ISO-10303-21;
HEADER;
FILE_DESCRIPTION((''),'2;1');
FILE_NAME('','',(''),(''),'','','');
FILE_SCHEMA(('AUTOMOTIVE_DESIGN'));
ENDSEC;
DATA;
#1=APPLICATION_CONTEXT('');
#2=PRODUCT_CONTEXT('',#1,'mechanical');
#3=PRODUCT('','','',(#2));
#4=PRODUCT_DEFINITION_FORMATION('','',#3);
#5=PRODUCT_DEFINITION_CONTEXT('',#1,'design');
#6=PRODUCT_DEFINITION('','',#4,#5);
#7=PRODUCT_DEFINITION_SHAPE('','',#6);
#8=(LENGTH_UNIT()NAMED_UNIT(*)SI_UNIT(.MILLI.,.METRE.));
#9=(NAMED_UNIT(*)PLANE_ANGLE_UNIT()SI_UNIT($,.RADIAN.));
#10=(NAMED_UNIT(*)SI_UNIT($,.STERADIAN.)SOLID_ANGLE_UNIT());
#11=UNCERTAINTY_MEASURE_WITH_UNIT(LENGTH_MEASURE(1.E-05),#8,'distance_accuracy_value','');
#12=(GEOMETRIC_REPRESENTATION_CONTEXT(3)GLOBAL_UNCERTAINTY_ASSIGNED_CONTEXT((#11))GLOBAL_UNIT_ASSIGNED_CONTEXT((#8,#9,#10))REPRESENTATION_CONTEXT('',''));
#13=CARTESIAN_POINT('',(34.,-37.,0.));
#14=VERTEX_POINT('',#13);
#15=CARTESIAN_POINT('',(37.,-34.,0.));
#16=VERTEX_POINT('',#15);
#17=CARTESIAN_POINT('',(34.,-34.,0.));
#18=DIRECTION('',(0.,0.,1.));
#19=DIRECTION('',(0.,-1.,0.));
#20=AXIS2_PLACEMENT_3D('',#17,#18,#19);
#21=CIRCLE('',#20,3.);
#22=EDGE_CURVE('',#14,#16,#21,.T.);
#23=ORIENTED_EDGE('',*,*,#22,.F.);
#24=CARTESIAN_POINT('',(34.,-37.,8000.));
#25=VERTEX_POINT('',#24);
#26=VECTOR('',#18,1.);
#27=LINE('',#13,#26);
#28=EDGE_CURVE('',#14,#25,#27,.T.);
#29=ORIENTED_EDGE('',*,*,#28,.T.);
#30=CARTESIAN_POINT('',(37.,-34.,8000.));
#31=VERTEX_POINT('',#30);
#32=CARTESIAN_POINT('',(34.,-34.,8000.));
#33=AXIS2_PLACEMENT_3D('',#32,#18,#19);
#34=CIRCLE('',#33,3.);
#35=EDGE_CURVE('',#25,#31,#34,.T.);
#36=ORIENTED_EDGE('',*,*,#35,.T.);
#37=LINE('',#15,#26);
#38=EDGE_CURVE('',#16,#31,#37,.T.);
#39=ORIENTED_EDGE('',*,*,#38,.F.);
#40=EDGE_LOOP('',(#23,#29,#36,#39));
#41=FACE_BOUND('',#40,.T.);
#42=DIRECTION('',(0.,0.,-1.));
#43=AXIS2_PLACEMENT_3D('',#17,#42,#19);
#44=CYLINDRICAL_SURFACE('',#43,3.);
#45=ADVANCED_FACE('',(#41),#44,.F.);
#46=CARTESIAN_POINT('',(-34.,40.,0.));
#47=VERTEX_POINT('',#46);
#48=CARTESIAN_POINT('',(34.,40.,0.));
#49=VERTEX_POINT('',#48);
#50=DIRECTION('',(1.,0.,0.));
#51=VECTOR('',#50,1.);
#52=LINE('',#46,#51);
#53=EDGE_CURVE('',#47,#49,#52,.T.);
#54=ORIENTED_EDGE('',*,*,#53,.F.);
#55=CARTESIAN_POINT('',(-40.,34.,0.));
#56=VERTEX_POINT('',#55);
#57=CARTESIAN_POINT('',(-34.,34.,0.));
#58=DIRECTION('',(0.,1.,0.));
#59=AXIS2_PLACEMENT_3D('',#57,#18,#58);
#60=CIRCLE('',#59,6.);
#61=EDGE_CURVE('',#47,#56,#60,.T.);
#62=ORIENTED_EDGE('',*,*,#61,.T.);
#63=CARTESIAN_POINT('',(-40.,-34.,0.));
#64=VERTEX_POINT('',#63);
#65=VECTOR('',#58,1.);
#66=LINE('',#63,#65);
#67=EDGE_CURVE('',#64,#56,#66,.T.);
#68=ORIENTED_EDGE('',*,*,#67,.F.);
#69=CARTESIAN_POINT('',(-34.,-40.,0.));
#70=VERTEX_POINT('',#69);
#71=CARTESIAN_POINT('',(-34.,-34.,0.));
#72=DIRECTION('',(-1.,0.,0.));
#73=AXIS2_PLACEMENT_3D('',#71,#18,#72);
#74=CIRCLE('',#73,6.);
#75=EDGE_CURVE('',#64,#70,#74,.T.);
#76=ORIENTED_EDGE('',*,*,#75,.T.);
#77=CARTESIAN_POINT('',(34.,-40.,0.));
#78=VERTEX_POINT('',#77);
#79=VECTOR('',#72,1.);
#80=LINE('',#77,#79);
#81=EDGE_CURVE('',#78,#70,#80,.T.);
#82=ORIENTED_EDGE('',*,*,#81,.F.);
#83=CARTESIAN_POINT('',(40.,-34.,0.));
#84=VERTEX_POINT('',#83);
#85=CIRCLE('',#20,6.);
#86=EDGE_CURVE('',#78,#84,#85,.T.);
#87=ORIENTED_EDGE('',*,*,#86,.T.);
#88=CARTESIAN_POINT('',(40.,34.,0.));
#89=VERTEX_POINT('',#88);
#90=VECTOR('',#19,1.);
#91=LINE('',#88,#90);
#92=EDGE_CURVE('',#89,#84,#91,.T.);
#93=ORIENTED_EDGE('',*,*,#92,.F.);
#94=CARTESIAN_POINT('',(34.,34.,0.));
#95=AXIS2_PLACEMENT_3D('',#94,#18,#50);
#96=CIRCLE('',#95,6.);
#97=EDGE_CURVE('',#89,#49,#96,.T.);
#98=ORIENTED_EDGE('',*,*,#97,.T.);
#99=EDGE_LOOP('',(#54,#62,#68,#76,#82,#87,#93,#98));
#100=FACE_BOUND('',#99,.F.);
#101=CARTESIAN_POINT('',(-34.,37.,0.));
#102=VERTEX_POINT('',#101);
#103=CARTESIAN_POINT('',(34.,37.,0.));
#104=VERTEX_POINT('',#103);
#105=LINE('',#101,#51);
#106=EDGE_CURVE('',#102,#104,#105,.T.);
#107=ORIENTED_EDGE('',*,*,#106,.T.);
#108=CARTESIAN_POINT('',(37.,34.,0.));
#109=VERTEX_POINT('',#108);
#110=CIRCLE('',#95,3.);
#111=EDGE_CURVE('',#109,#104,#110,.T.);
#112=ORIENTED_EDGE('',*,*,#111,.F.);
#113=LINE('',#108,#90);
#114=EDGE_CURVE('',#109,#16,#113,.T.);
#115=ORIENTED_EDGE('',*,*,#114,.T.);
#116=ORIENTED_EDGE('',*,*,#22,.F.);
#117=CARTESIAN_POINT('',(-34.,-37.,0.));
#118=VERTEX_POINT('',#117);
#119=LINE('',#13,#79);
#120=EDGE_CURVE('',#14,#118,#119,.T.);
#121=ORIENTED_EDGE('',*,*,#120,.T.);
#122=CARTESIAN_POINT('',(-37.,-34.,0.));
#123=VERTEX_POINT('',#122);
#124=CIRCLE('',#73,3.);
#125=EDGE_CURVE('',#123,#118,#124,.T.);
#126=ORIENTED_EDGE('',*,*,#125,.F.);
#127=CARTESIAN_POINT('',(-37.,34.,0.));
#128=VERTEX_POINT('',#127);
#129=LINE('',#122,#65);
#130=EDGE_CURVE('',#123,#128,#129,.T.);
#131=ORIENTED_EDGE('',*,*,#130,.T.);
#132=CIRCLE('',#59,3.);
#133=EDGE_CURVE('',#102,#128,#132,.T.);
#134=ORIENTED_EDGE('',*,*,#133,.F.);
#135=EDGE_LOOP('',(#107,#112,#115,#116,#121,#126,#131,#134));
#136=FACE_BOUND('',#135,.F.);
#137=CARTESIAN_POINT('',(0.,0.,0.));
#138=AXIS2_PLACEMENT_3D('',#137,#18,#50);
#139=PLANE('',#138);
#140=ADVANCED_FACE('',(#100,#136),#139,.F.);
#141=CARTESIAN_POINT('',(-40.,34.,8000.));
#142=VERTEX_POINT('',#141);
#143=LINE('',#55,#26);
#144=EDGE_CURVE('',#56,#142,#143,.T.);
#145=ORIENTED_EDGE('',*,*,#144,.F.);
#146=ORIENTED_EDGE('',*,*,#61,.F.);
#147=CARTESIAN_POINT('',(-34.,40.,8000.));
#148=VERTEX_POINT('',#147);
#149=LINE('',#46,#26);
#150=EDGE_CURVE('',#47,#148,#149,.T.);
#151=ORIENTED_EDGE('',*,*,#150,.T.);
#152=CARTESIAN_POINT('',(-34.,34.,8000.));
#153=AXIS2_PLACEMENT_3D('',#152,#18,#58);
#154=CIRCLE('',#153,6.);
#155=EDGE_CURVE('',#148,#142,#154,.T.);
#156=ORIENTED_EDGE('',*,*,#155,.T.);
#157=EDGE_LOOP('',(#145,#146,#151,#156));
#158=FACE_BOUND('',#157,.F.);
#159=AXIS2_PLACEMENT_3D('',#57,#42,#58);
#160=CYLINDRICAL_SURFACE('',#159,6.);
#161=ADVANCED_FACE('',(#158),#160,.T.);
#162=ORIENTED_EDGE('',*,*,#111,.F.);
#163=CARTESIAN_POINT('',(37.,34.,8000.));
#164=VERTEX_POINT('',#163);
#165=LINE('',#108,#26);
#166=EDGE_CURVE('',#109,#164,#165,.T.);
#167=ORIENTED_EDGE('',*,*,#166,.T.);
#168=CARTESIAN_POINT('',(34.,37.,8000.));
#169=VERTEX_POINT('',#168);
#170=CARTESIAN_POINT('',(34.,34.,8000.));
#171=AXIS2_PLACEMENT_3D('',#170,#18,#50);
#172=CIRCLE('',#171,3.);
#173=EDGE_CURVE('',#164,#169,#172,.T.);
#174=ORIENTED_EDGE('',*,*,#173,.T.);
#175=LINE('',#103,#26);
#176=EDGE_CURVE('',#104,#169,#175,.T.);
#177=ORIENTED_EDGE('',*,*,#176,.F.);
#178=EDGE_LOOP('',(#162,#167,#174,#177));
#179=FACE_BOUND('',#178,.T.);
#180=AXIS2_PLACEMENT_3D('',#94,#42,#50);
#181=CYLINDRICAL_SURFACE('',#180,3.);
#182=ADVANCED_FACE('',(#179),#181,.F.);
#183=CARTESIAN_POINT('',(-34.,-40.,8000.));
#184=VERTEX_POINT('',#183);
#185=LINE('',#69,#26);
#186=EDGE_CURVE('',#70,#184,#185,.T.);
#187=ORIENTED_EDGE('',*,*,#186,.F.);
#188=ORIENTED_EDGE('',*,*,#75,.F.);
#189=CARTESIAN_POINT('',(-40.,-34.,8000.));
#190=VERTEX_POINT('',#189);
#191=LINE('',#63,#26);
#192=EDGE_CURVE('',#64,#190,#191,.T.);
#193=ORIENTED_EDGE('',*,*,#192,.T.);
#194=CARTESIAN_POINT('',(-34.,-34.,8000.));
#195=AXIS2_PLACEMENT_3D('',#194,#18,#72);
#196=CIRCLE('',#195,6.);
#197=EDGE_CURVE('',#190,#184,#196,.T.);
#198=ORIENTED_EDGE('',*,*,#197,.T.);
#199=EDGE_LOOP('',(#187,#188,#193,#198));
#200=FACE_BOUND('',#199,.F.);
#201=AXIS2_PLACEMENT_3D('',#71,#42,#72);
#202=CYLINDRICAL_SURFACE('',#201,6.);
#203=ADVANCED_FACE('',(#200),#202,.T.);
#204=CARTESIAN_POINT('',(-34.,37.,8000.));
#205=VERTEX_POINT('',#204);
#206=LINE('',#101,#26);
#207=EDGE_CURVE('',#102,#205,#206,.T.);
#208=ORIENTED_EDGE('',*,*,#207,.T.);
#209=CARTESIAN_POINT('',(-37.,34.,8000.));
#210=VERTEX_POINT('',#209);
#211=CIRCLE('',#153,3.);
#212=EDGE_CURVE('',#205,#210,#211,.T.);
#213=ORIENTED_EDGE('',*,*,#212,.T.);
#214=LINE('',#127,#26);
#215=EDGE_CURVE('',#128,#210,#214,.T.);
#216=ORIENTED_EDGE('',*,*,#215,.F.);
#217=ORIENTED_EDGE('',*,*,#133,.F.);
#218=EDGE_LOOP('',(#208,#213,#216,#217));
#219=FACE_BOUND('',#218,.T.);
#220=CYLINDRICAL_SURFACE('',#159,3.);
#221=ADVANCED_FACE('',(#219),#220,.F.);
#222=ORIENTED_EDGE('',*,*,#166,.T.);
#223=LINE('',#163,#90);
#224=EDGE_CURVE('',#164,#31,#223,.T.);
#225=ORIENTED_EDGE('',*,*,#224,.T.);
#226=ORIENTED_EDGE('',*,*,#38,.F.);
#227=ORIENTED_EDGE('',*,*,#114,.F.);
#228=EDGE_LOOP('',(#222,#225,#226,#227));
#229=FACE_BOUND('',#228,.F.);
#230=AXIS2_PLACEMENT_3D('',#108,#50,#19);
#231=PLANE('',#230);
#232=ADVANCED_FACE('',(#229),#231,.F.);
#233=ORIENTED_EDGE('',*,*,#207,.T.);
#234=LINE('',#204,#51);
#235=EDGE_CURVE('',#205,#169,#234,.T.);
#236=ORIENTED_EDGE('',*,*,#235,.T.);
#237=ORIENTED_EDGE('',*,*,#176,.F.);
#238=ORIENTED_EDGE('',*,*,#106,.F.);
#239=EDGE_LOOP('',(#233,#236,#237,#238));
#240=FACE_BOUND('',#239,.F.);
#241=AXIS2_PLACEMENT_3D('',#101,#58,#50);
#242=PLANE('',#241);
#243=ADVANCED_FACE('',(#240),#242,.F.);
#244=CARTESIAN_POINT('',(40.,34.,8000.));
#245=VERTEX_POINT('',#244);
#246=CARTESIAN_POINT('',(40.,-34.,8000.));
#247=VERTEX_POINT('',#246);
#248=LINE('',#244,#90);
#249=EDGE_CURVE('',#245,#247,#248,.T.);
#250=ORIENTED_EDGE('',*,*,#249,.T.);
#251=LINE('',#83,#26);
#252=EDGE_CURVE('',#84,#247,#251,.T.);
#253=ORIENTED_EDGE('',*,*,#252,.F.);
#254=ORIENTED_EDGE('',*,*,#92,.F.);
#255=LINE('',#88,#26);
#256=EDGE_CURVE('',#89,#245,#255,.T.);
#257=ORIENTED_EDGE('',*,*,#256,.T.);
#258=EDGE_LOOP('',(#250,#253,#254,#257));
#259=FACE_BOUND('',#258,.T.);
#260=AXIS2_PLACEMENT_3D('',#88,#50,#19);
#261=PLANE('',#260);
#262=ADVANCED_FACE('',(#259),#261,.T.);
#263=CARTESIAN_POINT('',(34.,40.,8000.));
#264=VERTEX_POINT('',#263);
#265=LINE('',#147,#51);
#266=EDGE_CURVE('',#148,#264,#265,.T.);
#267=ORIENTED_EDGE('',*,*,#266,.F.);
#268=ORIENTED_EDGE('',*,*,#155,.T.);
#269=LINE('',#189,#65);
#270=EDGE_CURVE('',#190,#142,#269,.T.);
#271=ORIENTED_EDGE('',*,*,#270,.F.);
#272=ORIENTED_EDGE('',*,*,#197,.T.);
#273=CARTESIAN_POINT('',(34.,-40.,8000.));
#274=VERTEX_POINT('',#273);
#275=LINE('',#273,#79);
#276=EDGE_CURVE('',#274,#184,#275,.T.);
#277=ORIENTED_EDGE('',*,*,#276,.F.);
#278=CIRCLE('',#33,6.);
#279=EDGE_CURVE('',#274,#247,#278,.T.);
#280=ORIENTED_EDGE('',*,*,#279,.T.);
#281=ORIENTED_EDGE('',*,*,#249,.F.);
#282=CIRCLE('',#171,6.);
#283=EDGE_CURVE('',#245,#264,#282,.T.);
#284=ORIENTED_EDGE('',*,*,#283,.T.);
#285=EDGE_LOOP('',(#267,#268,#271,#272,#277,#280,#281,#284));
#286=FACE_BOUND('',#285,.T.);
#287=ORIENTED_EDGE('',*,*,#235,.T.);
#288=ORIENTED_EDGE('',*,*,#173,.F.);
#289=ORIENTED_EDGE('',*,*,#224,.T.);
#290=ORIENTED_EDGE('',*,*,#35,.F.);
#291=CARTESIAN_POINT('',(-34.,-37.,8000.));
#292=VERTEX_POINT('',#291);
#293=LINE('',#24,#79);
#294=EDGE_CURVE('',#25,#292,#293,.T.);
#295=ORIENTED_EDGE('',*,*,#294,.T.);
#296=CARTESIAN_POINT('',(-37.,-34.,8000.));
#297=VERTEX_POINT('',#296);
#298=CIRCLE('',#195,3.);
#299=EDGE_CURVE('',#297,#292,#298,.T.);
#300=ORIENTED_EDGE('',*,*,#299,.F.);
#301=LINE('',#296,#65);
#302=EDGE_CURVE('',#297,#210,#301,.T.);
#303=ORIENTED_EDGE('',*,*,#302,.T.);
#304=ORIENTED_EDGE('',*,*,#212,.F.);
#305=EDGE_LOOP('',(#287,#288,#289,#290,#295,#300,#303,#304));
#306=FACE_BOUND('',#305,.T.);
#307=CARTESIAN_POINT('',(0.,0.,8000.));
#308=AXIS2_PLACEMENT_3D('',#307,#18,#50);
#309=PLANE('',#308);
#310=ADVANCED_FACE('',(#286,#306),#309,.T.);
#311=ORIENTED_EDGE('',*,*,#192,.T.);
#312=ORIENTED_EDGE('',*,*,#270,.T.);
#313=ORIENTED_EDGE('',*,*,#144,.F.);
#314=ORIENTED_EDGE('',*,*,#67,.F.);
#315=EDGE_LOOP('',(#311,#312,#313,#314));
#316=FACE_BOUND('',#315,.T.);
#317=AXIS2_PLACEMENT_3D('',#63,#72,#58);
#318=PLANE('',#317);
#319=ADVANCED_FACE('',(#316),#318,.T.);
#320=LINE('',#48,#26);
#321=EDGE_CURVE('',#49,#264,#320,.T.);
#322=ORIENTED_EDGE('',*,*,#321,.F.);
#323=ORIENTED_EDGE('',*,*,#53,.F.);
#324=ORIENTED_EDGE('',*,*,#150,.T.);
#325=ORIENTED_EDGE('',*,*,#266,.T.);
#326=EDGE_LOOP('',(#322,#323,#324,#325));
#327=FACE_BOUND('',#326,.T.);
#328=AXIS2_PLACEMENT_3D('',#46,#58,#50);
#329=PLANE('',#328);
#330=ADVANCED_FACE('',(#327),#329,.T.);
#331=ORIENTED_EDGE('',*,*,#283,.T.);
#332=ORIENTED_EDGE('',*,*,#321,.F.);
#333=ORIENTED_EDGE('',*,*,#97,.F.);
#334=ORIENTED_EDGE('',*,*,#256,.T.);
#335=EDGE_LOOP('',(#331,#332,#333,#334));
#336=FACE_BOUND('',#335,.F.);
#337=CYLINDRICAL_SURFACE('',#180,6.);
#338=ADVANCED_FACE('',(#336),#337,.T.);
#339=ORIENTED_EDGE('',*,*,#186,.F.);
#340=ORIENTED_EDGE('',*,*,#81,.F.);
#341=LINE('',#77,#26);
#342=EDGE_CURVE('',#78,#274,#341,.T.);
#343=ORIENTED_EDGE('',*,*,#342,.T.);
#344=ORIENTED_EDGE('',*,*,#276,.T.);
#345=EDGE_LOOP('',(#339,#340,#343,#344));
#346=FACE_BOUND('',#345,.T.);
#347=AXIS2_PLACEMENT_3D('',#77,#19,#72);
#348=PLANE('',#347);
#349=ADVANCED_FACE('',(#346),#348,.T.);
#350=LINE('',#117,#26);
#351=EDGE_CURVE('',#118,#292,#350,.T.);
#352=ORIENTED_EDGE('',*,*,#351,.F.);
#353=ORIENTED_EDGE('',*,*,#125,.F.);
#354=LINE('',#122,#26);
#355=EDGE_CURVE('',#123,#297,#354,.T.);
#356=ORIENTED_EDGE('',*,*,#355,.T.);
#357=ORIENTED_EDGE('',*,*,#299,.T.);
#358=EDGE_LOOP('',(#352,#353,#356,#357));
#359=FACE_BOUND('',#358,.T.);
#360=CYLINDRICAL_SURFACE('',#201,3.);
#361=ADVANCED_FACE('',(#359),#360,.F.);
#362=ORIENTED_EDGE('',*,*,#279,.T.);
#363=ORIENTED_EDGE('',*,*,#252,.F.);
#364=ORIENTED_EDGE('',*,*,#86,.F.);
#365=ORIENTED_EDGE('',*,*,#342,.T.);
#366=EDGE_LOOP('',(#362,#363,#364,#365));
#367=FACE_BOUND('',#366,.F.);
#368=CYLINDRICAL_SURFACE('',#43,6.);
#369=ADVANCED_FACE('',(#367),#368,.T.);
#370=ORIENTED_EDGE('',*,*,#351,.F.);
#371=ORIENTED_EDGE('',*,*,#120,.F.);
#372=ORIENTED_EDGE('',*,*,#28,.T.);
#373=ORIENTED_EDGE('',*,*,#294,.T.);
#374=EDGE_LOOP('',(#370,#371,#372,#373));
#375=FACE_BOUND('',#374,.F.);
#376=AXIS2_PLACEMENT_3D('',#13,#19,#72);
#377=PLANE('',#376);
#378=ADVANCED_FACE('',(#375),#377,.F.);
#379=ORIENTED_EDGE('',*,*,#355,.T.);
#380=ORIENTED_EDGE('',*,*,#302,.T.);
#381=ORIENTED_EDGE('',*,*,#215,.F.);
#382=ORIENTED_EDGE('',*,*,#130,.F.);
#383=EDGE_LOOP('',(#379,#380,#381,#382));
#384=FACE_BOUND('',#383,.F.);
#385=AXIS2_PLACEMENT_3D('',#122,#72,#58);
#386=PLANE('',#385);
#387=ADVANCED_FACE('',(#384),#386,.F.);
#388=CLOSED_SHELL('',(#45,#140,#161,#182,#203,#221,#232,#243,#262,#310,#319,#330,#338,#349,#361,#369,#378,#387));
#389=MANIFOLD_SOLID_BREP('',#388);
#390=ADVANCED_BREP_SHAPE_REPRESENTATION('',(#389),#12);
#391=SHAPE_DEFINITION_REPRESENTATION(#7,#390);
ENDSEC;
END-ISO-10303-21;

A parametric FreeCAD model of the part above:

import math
import FreeCAD as App
import Part
import Sketcher
from FreeCAD import Vector
Q = App.Units.Quantity

doc = App.newDocument("Part")
body = doc.addObject("PartDesign::Body", "Body")

# Sketch on XY plane
sketch1 = body.newObject("Sketcher::SketchObject", "Sketch")
sketch1.AttachmentSupport = (doc.getObject("XY_Plane"), [""])
sketch1.MapMode = "FlatFace"
sketch1.addGeometry(Part.LineSegment(Vector(-40, 34, 0), Vector(-40, -34, 0)), False)
sketch1.addGeometry(Part.ArcOfCircle(Part.Circle(Vector(-34, -34, 0), Vector(0, 0, 1), 6), math.radians(180), math.radians(270)), False)
sketch1.addGeometry(Part.LineSegment(Vector(-34, -40, 0), Vector(34, -40, 0)), False)
sketch1.addGeometry(Part.ArcOfCircle(Part.Circle(Vector(34, -34, 0), Vector(0, 0, 1), 6), math.radians(-90), math.radians(0)), False)
sketch1.addGeometry(Part.LineSegment(Vector(40, -34, 0), Vector(40, 34, 0)), False)
sketch1.addGeometry(Part.ArcOfCircle(Part.Circle(Vector(34, 34, 0), Vector(0, 0, 1), 6), math.radians(0), math.radians(90)), False)
sketch1.addGeometry(Part.LineSegment(Vector(34, 40, 0), Vector(-34, 40, 0)), False)
sketch1.addGeometry(Part.ArcOfCircle(Part.Circle(Vector(-34, 34, 0), Vector(0, 0, 1), 6), math.radians(90), math.radians(180)), False)
sketch1.addGeometry(Part.ArcOfCircle(Part.Circle(Vector(-34, 34, 0), Vector(0, 0, 1), 3), math.radians(90), math.radians(180)), False)
sketch1.addGeometry(Part.LineSegment(Vector(-34, 37, 0), Vector(34, 37, 0)), False)
sketch1.addGeometry(Part.ArcOfCircle(Part.Circle(Vector(34, 34, 0), Vector(0, 0, 1), 3), math.radians(0), math.radians(90)), False)
sketch1.addGeometry(Part.LineSegment(Vector(37, 34, 0), Vector(37, -34, 0)), False)
sketch1.addGeometry(Part.ArcOfCircle(Part.Circle(Vector(34, -34, 0), Vector(0, 0, 1), 3), math.radians(-90), math.radians(0)), False)
sketch1.addGeometry(Part.LineSegment(Vector(34, -37, 0), Vector(-34, -37, 0)), False)
sketch1.addGeometry(Part.ArcOfCircle(Part.Circle(Vector(-34, -34, 0), Vector(0, 0, 1), 3), math.radians(180), math.radians(270)), False)
sketch1.addGeometry(Part.LineSegment(Vector(-37, -34, 0), Vector(-37, 34, 0)), False)
sketch1.addConstraint(Sketcher.Constraint("Tangent", 0, 2, 1, 1))
sketch1.addConstraint(Sketcher.Constraint("Tangent", 1, 2, 2, 1))
sketch1.addConstraint(Sketcher.Constraint("Tangent", 2, 2, 3, 1))
sketch1.addConstraint(Sketcher.Constraint("Tangent", 3, 2, 4, 1))
sketch1.addConstraint(Sketcher.Constraint("Tangent", 4, 2, 5, 1))
sketch1.addConstraint(Sketcher.Constraint("Tangent", 5, 2, 6, 1))
sketch1.addConstraint(Sketcher.Constraint("Tangent", 6, 2, 7, 1))
sketch1.addConstraint(Sketcher.Constraint("Tangent", 7, 2, 0, 1))
sketch1.addConstraint(Sketcher.Constraint("Tangent", 8, 1, 9, 1))
sketch1.addConstraint(Sketcher.Constraint("Tangent", 9, 2, 10, 2))
sketch1.addConstraint(Sketcher.Constraint("Tangent", 10, 1, 11, 1))
sketch1.addConstraint(Sketcher.Constraint("Tangent", 11, 2, 12, 2))
sketch1.addConstraint(Sketcher.Constraint("Tangent", 12, 1, 13, 1))
sketch1.addConstraint(Sketcher.Constraint("Tangent", 13, 2, 14, 2))
sketch1.addConstraint(Sketcher.Constraint("Tangent", 14, 1, 15, 1))
sketch1.addConstraint(Sketcher.Constraint("Tangent", 15, 2, 8, 2))
sketch1.addConstraint(Sketcher.Constraint("Vertical", 0))
sketch1.addConstraint(Sketcher.Constraint("Horizontal", 2))
sketch1.addConstraint(Sketcher.Constraint("Vertical", 4))
sketch1.addConstraint(Sketcher.Constraint("Horizontal", 6))
sketch1.addConstraint(Sketcher.Constraint("Horizontal", 9))
sketch1.addConstraint(Sketcher.Constraint("Vertical", 11))
sketch1.addConstraint(Sketcher.Constraint("Horizontal", 13))
sketch1.addConstraint(Sketcher.Constraint("Vertical", 15))
sketch1.addConstraint(Sketcher.Constraint("Coincident", 8, 3, 7, 3))
sketch1.addConstraint(Sketcher.Constraint("Coincident", 10, 3, 5, 3))
sketch1.addConstraint(Sketcher.Constraint("Coincident", 12, 3, 3, 3))
sketch1.addConstraint(Sketcher.Constraint("Equal", 1, 3))
sketch1.addConstraint(Sketcher.Constraint("Equal", 3, 5))
sketch1.addConstraint(Sketcher.Constraint("Equal", 5, 7))
sketch1.addConstraint(Sketcher.Constraint("Equal", 12, 14))
sketch1.addConstraint(Sketcher.Constraint("Symmetric", 1, 3, 5, 3, -1, 1))
sketch1.addConstraint(Sketcher.Constraint("Equal", 13, 0))
sketch1.addConstraint(Sketcher.Constraint("Radius", 1, Q("6 mm")))
sketch1.addConstraint(Sketcher.Constraint("Radius", 8, Q("3 mm")))
sketch1.addConstraint(Sketcher.Constraint("DistanceX", 0, 2, -1, 1, Q("40 mm")))
pad1 = body.newObject("PartDesign::Pad", "Pad")
pad1.Profile = sketch1
pad1.Length = 8000

doc.recompute()
